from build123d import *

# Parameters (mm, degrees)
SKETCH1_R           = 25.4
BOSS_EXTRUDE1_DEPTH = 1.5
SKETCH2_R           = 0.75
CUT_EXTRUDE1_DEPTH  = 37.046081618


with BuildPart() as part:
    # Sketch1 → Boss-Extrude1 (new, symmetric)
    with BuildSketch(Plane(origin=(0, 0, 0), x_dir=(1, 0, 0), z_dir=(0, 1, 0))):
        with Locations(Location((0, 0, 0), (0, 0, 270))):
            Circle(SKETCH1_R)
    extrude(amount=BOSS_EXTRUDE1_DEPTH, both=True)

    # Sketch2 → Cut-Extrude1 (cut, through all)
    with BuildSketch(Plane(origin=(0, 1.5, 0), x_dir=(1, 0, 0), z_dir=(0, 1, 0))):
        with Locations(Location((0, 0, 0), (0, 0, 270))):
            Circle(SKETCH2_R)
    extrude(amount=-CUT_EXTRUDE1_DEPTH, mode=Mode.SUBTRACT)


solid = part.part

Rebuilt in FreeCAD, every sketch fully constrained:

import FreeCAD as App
import Part
import Sketcher
Q = App.Units.Quantity

doc = App.newDocument("Part")
body = doc.addObject("PartDesign::Body", "Body")

# Sketch on XZ plane
sketch1 = doc.addObject("Sketcher::SketchObject", "Sketch")
body.addObject(sketch1)
sketch1.AttachmentSupport = (doc.XZ_Plane, [""])
sketch1.MapMode = "FlatFace"
sketch1.addGeometry(Part.Circle(App.Vector(0, 0, 0), App.Vector(0, 0, 1), 25), False)
sketch1.addConstraint([
    Sketcher.Constraint("Coincident", 0, 3, -1, 1),
    Sketcher.Constraint("Diameter", 0, Q("50.8 mm")),
])
pad1 = doc.addObject("PartDesign::Pad", "Pad")
body.addObject(pad1)
pad1.Profile = sketch1
pad1.Length = 3
pad1.Midplane = True

# Sketch on XZ plane
sketch2 = doc.addObject("Sketcher::SketchObject", "Sketch001")
body.addObject(sketch2)
sketch2.AttachmentSupport = (doc.XZ_Plane, [""])
sketch2.MapMode = "FlatFace"
sketch2.AttachmentOffset = App.Placement(App.Vector(0, 0, -1.5), App.Rotation())
sketch2.addGeometry(Part.Circle(App.Vector(0, 0, 0), App.Vector(0, 0, 1), 0.8), False)
sketch2.addConstraint([
    Sketcher.Constraint("Coincident", 0, 3, -1, 1),
    Sketcher.Constraint("Diameter", 0, Q("1.5 mm")),
])
pocket1 = doc.addObject("PartDesign::Pocket", "Pocket")
body.addObject(pocket1)
pocket1.Profile = sketch2
pocket1.Type = "ThroughAll"
pocket1.Reversed = True

doc.recompute()
